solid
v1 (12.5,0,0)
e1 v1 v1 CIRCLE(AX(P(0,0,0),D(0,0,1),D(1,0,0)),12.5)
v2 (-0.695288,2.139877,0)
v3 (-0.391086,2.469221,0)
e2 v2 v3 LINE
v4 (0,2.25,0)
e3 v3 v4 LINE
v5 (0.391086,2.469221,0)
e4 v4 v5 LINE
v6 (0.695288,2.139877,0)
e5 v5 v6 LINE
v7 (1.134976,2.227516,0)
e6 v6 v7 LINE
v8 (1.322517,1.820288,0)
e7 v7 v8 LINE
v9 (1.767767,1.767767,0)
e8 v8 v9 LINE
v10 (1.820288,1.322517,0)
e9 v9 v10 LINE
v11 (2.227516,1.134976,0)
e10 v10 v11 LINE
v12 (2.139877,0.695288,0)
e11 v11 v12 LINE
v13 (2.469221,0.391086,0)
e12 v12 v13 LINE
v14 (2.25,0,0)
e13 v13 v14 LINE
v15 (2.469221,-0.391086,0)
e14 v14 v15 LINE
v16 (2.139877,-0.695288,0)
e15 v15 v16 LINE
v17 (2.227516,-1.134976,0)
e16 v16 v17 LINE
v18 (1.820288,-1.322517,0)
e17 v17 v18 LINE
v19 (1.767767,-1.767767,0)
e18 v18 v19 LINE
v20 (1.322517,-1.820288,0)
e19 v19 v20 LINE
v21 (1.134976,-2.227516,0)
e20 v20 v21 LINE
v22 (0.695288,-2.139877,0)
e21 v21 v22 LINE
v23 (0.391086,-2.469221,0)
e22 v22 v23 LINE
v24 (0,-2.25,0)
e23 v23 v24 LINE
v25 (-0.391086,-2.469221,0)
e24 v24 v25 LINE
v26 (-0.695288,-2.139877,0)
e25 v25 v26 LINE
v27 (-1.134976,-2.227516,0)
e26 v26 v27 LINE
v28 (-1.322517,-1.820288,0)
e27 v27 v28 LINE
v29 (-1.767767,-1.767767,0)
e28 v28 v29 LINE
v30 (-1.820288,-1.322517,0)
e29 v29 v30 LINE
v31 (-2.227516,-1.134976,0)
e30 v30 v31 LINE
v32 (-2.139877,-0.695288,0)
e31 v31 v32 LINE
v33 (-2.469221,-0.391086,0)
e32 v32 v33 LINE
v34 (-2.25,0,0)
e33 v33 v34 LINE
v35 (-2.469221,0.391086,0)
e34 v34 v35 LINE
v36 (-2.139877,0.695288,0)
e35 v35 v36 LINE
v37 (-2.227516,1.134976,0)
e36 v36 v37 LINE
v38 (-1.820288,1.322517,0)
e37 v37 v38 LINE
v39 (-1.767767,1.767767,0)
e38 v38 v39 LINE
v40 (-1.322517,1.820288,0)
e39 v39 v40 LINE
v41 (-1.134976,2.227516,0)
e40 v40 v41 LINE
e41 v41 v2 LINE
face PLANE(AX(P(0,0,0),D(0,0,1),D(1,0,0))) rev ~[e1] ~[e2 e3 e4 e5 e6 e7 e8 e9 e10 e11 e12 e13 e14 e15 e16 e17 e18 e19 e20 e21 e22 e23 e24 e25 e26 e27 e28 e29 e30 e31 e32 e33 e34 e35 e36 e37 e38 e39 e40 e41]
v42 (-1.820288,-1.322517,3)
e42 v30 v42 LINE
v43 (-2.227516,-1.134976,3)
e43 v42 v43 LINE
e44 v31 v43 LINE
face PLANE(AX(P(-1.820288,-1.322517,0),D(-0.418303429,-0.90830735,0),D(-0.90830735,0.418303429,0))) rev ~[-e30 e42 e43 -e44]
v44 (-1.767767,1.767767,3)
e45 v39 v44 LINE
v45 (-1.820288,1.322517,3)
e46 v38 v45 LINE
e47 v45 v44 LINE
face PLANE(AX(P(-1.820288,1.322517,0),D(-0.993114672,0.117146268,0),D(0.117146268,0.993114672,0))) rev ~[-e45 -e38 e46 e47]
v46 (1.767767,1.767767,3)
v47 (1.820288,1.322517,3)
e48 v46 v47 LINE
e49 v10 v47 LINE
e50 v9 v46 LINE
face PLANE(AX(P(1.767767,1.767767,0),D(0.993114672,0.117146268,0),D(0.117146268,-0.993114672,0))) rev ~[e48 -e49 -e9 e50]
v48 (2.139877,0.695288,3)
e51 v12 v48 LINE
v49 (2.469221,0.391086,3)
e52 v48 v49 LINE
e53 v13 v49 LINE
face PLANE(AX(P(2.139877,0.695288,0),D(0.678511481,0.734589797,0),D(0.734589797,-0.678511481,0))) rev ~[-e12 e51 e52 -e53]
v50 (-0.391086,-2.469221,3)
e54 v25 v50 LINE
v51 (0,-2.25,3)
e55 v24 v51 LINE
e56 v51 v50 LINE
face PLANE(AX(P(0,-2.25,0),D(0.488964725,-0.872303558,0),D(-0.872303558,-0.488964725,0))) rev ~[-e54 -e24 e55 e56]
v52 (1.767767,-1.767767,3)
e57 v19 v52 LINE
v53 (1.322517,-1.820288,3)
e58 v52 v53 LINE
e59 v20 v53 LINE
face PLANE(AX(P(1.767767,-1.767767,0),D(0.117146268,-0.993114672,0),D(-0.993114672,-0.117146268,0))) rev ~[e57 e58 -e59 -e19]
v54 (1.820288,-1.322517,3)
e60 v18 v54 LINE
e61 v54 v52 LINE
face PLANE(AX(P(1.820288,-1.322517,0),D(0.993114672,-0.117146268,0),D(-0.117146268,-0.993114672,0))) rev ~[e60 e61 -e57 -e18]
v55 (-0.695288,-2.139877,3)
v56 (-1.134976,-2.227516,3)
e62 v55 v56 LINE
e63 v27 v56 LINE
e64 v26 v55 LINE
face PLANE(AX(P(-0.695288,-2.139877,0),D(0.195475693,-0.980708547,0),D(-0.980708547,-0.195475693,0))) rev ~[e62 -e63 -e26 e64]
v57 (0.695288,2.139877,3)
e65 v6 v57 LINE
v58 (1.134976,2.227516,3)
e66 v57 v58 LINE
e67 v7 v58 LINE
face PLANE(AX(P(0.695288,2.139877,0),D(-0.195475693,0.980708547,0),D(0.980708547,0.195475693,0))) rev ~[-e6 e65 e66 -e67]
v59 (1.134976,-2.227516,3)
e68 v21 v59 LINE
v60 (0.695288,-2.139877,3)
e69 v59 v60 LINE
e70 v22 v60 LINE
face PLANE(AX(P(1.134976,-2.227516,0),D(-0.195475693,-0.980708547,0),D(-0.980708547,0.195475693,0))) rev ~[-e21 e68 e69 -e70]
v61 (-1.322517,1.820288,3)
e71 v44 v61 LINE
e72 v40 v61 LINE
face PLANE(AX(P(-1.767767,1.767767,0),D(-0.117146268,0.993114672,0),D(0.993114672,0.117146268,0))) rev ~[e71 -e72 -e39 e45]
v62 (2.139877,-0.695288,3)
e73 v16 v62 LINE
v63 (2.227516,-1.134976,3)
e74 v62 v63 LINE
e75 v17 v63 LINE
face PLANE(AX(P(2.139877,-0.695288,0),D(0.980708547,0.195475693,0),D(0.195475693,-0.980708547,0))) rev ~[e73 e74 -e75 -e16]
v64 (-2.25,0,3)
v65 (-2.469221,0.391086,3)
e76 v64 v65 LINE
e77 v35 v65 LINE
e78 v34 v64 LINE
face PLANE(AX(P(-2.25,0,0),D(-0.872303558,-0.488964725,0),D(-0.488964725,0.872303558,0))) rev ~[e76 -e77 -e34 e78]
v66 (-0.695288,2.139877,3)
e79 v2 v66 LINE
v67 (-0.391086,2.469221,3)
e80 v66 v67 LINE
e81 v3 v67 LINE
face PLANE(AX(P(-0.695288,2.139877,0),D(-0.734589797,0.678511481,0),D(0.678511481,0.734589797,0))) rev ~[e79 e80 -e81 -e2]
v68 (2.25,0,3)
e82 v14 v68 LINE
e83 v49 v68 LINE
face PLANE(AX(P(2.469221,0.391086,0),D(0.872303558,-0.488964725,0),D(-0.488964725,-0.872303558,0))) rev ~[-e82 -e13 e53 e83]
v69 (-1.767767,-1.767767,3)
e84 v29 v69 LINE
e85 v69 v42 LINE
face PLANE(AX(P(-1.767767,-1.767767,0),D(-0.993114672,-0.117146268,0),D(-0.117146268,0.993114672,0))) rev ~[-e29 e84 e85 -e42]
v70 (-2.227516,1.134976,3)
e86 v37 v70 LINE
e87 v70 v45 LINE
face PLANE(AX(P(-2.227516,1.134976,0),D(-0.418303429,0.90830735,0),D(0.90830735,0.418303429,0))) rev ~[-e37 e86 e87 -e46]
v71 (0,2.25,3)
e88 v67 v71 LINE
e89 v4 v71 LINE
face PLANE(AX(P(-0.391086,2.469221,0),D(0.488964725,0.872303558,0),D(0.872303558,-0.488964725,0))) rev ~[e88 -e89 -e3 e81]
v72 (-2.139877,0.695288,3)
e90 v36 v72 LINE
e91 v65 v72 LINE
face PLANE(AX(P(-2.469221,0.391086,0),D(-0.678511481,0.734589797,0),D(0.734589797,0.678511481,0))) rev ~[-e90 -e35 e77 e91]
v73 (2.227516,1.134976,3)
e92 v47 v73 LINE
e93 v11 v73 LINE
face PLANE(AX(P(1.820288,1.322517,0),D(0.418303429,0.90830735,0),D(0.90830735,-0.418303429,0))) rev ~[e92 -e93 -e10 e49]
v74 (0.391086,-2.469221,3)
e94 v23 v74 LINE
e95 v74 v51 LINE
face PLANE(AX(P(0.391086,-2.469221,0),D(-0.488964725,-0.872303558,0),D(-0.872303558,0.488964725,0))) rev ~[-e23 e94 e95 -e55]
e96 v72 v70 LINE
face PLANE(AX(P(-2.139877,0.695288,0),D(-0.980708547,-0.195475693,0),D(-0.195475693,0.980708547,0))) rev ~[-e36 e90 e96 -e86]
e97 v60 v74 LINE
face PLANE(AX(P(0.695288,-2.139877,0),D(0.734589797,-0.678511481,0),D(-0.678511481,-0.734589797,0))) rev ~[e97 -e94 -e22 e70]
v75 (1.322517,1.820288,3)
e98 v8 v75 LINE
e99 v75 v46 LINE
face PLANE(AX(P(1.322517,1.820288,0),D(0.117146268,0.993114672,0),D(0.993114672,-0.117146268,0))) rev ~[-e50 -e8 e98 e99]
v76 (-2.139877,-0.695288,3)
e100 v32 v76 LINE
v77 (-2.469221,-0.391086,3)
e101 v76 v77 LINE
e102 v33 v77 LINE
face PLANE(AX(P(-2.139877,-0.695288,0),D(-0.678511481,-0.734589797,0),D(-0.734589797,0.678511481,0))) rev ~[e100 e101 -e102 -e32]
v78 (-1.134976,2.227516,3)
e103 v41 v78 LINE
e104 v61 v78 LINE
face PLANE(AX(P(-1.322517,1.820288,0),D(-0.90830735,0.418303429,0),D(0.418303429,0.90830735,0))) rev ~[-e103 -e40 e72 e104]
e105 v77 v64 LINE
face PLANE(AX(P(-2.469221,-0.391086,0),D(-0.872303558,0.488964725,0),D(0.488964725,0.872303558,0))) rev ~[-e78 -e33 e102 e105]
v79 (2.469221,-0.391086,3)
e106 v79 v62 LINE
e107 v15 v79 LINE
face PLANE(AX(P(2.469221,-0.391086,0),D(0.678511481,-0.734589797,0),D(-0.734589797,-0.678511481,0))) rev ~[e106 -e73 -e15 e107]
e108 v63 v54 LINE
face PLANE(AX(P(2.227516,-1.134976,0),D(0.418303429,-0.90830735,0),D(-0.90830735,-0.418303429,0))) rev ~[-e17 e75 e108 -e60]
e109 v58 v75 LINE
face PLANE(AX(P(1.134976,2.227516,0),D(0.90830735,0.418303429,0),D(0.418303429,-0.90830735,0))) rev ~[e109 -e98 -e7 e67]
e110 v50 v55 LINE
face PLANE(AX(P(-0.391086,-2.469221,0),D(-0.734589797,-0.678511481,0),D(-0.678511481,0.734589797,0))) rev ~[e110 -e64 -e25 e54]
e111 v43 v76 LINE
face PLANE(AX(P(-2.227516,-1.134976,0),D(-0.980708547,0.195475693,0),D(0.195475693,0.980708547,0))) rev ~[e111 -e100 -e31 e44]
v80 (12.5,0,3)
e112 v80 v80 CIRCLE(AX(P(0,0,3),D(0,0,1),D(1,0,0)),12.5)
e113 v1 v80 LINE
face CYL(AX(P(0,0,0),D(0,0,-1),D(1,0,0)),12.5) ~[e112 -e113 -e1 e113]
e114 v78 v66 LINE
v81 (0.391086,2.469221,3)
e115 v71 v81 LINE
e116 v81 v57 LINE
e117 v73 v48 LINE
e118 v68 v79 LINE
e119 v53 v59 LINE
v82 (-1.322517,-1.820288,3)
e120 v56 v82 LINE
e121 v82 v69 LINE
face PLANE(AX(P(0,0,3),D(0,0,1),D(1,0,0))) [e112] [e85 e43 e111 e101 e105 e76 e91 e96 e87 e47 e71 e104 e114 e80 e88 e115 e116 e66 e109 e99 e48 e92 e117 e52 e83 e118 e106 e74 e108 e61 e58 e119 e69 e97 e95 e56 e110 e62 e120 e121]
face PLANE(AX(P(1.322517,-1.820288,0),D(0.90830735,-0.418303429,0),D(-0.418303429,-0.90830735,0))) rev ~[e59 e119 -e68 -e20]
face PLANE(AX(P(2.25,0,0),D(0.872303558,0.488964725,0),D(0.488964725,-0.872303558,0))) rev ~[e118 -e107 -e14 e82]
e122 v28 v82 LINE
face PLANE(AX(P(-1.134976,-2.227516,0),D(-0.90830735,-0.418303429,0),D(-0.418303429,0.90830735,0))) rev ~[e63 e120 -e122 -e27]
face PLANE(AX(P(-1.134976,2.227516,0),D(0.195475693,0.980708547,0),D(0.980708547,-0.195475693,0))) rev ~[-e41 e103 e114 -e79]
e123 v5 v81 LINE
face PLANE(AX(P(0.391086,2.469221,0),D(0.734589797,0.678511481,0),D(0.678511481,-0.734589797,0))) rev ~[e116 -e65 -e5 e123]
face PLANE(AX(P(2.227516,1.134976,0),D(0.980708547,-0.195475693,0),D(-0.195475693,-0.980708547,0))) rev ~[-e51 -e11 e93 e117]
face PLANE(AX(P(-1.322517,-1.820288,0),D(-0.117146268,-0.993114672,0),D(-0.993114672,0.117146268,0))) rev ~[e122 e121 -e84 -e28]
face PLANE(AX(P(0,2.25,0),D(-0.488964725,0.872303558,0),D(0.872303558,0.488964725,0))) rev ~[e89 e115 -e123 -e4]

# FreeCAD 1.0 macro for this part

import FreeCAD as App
import Part
import Sketcher
Q = App.Units.Quantity

doc = App.newDocument("Part")
params = doc.addObject("Spreadsheet::Sheet", "Params")
for row, (alias, value) in enumerate([
    ("sketch1_diameter", "25 mm"),
    ("pad1_length", "3 mm"),
], start=1):
    params.set(f"A{row}", alias)
    params.set(f"B{row}", "=" + value)
    params.setAlias(f"B{row}", alias)

body = doc.addObject("PartDesign::Body", "Body")

# Sketch on XY plane
sketch1 = body.newObject("Sketcher::SketchObject", "Sketch")
sketch1.AttachmentSupport = (doc.getObject("XY_Plane"), [""])
sketch1.MapMode = "FlatFace"
sketch1.addGeometry(Part.Circle(App.Vector(0, 0, 0), App.Vector(0, 0, 1), 12.5), False)
sketch1.addGeometry(Part.LineSegment(App.Vector(2.14, 0.7, 0), App.Vector(2.47, 0.39, 0)), False)
sketch1.addGeometry(Part.LineSegment(App.Vector(2.47, 0.39, 0), App.Vector(2.25, 0, 0)), False)
sketch1.addGeometry(Part.LineSegment(App.Vector(2.25, 0, 0), App.Vector(2.47, -0.39, 0)), False)
sketch1.addGeometry(Part.LineSegment(App.Vector(2.47, -0.39, 0), App.Vector(2.14, -0.7, 0)), False)
sketch1.addGeometry(Part.LineSegment(App.Vector(2.14, -0.7, 0), App.Vector(2.23, -1.13, 0)), False)
sketch1.addGeometry(Part.LineSegment(App.Vector(2.23, -1.13, 0), App.Vector(1.82, -1.32, 0)), False)
sketch1.addGeometry(Part.LineSegment(App.Vector(1.82, -1.32, 0), App.Vector(1.77, -1.77, 0)), False)
sketch1.addGeometry(Part.LineSegment(App.Vector(1.77, -1.77, 0), App.Vector(1.32, -1.82, 0)), False)
sketch1.addGeometry(Part.LineSegment(App.Vector(1.32, -1.82, 0), App.Vector(1.13, -2.23, 0)), False)
sketch1.addGeometry(Part.LineSegment(App.Vector(1.13, -2.23, 0), App.Vector(0.7, -2.14, 0)), False)
sketch1.addGeometry(Part.LineSegment(App.Vector(0.7, -2.14, 0), App.Vector(0.39, -2.47, 0)), False)
sketch1.addGeometry(Part.LineSegment(App.Vector(0.39, -2.47, 0), App.Vector(0, -2.25, 0)), False)
sketch1.addGeometry(Part.LineSegment(App.Vector(0, -2.25, 0), App.Vector(-0.39, -2.47, 0)), False)
sketch1.addGeometry(Part.LineSegment(App.Vector(-0.39, -2.47, 0), App.Vector(-0.7, -2.14, 0)), False)
sketch1.addGeometry(Part.LineSegment(App.Vector(-0.7, -2.14, 0), App.Vector(-1.13, -2.23, 0)), False)
sketch1.addGeometry(Part.LineSegment(App.Vector(-1.13, -2.23, 0), App.Vector(-1.32, -1.82, 0)), False)
sketch1.addGeometry(Part.LineSegment(App.Vector(-1.32, -1.82, 0), App.Vector(-1.77, -1.77, 0)), False)
sketch1.addGeometry(Part.LineSegment(App.Vector(-1.77, -1.77, 0), App.Vector(-1.82, -1.32, 0)), False)
sketch1.addGeometry(Part.LineSegment(App.Vector(-1.82, -1.32, 0), App.Vector(-2.23, -1.13, 0)), False)
sketch1.addGeometry(Part.LineSegment(App.Vector(-2.23, -1.13, 0), App.Vector(-2.14, -0.7, 0)), False)
sketch1.addGeometry(Part.LineSegment(App.Vector(-2.14, -0.7, 0), App.Vector(-2.47, -0.39, 0)), False)
sketch1.addGeometry(Part.LineSegment(App.Vector(-2.47, -0.39, 0), App.Vector(-2.25, 0, 0)), False)
sketch1.addGeometry(Part.LineSegment(App.Vector(-2.25, 0, 0), App.Vector(-2.47, 0.39, 0)), False)
sketch1.addGeometry(Part.LineSegment(App.Vector(-2.47, 0.39, 0), App.Vector(-2.14, 0.7, 0)), False)
sketch1.addGeometry(Part.LineSegment(App.Vector(-2.14, 0.7, 0), App.Vector(-2.23, 1.13, 0)), False)
sketch1.addGeometry(Part.LineSegment(App.Vector(-2.23, 1.13, 0), App.Vector(-1.82, 1.32, 0)), False)
sketch1.addGeometry(Part.LineSegment(App.Vector(-1.82, 1.32, 0), App.Vector(-1.77, 1.77, 0)), False)
sketch1.addGeometry(Part.LineSegment(App.Vector(-1.77, 1.77, 0), App.Vector(-1.32, 1.82, 0)), False)
sketch1.addGeometry(Part.LineSegment(App.Vector(-1.32, 1.82, 0), App.Vector(-1.13, 2.23, 0)), False)
sketch1.addGeometry(Part.LineSegment(App.Vector(-1.13, 2.23, 0), App.Vector(-0.7, 2.14, 0)), False)
sketch1.addGeometry(Part.LineSegment(App.Vector(-0.7, 2.14, 0), App.Vector(-0.39, 2.47, 0)), False)
sketch1.addGeometry(Part.LineSegment(App.Vector(-0.39, 2.47, 0), App.Vector(0, 2.25, 0)), False)
sketch1.addGeometry(Part.LineSegment(App.Vector(0, 2.25, 0), App.Vector(0.39, 2.47, 0)), False)
sketch1.addGeometry(Part.LineSegment(App.Vector(0.39, 2.47, 0), App.Vector(0.7, 2.14, 0)), False)
sketch1.addGeometry(Part.LineSegment(App.Vector(0.7, 2.14, 0), App.Vector(1.13, 2.23, 0)), False)
sketch1.addGeometry(Part.LineSegment(App.Vector(1.13, 2.23, 0), App.Vector(1.32, 1.82, 0)), False)
sketch1.addGeometry(Part.LineSegment(App.Vector(1.32, 1.82, 0), App.Vector(1.77, 1.77, 0)), False)
sketch1.addGeometry(Part.LineSegment(App.Vector(1.77, 1.77, 0), App.Vector(1.82, 1.32, 0)), False)
sketch1.addGeometry(Part.LineSegment(App.Vector(1.82, 1.32, 0), App.Vector(2.23, 1.13, 0)), False)
sketch1.addGeometry(Part.LineSegment(App.Vector(2.23, 1.13, 0), App.Vector(2.14, 0.7, 0)), False)
sketch1.addConstraint(Sketcher.Constraint("Coincident", 1, 2, 2, 1))
sketch1.addConstraint(Sketcher.Constraint("Coincident", 2, 2, 3, 1))
sketch1.addConstraint(Sketcher.Constraint("Coincident", 3, 2, 4, 1))
sketch1.addConstraint(Sketcher.Constraint("Coincident", 4, 2, 5, 1))
sketch1.addConstraint(Sketcher.Constraint("Coincident", 5, 2, 6, 1))
sketch1.addConstraint(Sketcher.Constraint("Coincident", 6, 2, 7, 1))
sketch1.addConstraint(Sketcher.Constraint("Coincident", 7, 2, 8, 1))
sketch1.addConstraint(Sketcher.Constraint("Coincident", 8, 2, 9, 1))
sketch1.addConstraint(Sketcher.Constraint("Coincident", 9, 2, 10, 1))
sketch1.addConstraint(Sketcher.Constraint("Coincident", 10, 2, 11, 1))
sketch1.addConstraint(Sketcher.Constraint("Coincident", 11, 2, 12, 1))
sketch1.addConstraint(Sketcher.Constraint("Coincident", 12, 2, 13, 1))
sketch1.addConstraint(Sketcher.Constraint("Coincident", 13, 2, 14, 1))
sketch1.addConstraint(Sketcher.Constraint("Coincident", 14, 2, 15, 1))
sketch1.addConstraint(Sketcher.Constraint("Coincident", 15, 2, 16, 1))
sketch1.addConstraint(Sketcher.Constraint("Coincident", 16, 2, 17, 1))
sketch1.addConstraint(Sketcher.Constraint("Coincident", 17, 2, 18, 1))
sketch1.addConstraint(Sketcher.Constraint("Coincident", 18, 2, 19, 1))
sketch1.addConstraint(Sketcher.Constraint("Coincident", 19, 2, 20, 1))
sketch1.addConstraint(Sketcher.Constraint("Coincident", 20, 2, 21, 1))
sketch1.addConstraint(Sketcher.Constraint("Coincident", 21, 2, 22, 1))
sketch1.addConstraint(Sketcher.Constraint("Coincident", 22, 2, 23, 1))
sketch1.addConstraint(Sketcher.Constraint("Coincident", 23, 2, 24, 1))
sketch1.addConstraint(Sketcher.Constraint("Coincident", 24, 2, 25, 1))
sketch1.addConstraint(Sketcher.Constraint("Coincident", 25, 2, 26, 1))
sketch1.addConstraint(Sketcher.Constraint("Coincident", 26, 2, 27, 1))
sketch1.addConstraint(Sketcher.Constraint("Coincident", 27, 2, 28, 1))
sketch1.addConstraint(Sketcher.Constraint("Coincident", 28, 2, 29, 1))
sketch1.addConstraint(Sketcher.Constraint("Coincident", 29, 2, 30, 1))
sketch1.addConstraint(Sketcher.Constraint("Coincident", 30, 2, 31, 1))
sketch1.addConstraint(Sketcher.Constraint("Coincident", 31, 2, 32, 1))
sketch1.addConstraint(Sketcher.Constraint("Coincident", 32, 2, 33, 1))
sketch1.addConstraint(Sketcher.Constraint("Coincident", 33, 2, 34, 1))
sketch1.addConstraint(Sketcher.Constraint("Coincident", 34, 2, 35, 1))
sketch1.addConstraint(Sketcher.Constraint("Coincident", 35, 2, 36, 1))
sketch1.addConstraint(Sketcher.Constraint("Coincident", 36, 2, 37, 1))
sketch1.addConstraint(Sketcher.Constraint("Coincident", 37, 2, 38, 1))
sketch1.addConstraint(Sketcher.Constraint("Coincident", 38, 2, 39, 1))
sketch1.addConstraint(Sketcher.Constraint("Coincident", 39, 2, 40, 1))
sketch1.addConstraint(Sketcher.Constraint("Coincident", 40, 2, 1, 1))
sketch1.addConstraint(Sketcher.Constraint("Coincident", 0, 3, -1, 1))
sketch1.addConstraint(Sketcher.Constraint("Symmetric", 1, 2, 21, 2, -1, 1))
sketch1.addConstraint(Sketcher.Constraint("Symmetric", 2, 2, 22, 2, -1, 1))
sketch1.addConstraint(Sketcher.Constraint("Symmetric", 3, 2, 23, 2, -1, 1))
sketch1.addConstraint(Sketcher.Constraint("Symmetric", 4, 2, 24, 2, -1, 1))
sketch1.addConstraint(Sketcher.Constraint("Symmetric", 5, 2, 25, 2, -1, 1))
sketch1.addConstraint(Sketcher.Constraint("Symmetric", 6, 2, 26, 2, -1, 1))
sketch1.addConstraint(Sketcher.Constraint("Symmetric", 7, 2, 27, 2, -1, 1))
sketch1.addConstraint(Sketcher.Constraint("Symmetric", 8, 2, 28, 2, -1, 1))
sketch1.addConstraint(Sketcher.Constraint("Symmetric", 9, 2, 29, 2, -1, 1))
sketch1.addConstraint(Sketcher.Constraint("Symmetric", 10, 2, 30, 2, -1, 1))
sketch1.addConstraint(Sketcher.Constraint("Symmetric", 11, 2, 31, 2, -1, 1))
sketch1.addConstraint(Sketcher.Constraint("Symmetric", 12, 2, 32, 2, -1, 1))
sketch1.addConstraint(Sketcher.Constraint("Symmetric", 13, 2, 33, 2, -1, 1))
sketch1.addConstraint(Sketcher.Constraint("Symmetric", 14, 2, 34, 2, -1, 1))
sketch1.addConstraint(Sketcher.Constraint("Symmetric", 15, 2, 35, 2, -1, 1))
sketch1.addConstraint(Sketcher.Constraint("Symmetric", 16, 2, 36, 2, -1, 1))
sketch1.addConstraint(Sketcher.Constraint("Symmetric", 17, 2, 37, 2, -1, 1))
sketch1.addConstraint(Sketcher.Constraint("Symmetric", 18, 2, 38, 2, -1, 1))
sketch1.addConstraint(Sketcher.Constraint("Symmetric", 19, 2, 39, 2, -1, 1))
sketch1.addConstraint(Sketcher.Constraint("Symmetric", 20, 2, 40, 2, -1, 1))
sketch1.addConstraint(Sketcher.Constraint("Symmetric", 11, 2, 13, 2, -2))
sketch1.addConstraint(Sketcher.Constraint("Symmetric", 10, 2, 14, 2, -2))
sketch1.addConstraint(Sketcher.Constraint("Symmetric", 9, 2, 15, 2, -2))
sketch1.addConstraint(Sketcher.Constraint("Symmetric", 8, 2, 16, 2, -2))
sketch1.addConstraint(Sketcher.Constraint("Symmetric", 7, 2, 17, 2, -2))
sketch1.addConstraint(Sketcher.Constraint("Symmetric", 6, 2, 18, 2, -2))
sketch1.addConstraint(Sketcher.Constraint("Symmetric", 5, 2, 19, 2, -2))
sketch1.addConstraint(Sketcher.Constraint("Symmetric", 4, 2, 20, 2, -2))
sketch1.addConstraint(Sketcher.Constraint("Symmetric", 3, 2, 21, 2, -2))
sketch1.addConstraint(Sketcher.Constraint("PointOnObject", 2, 2, -1))
sketch1.addConstraint(Sketcher.Constraint("PointOnObject", 12, 2, -2))
sketch1.addConstraint(Sketcher.Constraint("Perpendicular", 1, 11))
sketch1.addConstraint(Sketcher.Constraint("Perpendicular", 2, 12))
sketch1.addConstraint(Sketcher.Constraint("Perpendicular", 5, 15))
sketch1.addConstraint(Sketcher.Constraint("Perpendicular", 6, 16))
sketch1.addConstraint(Sketcher.Constraint("Perpendicular", 7, 17))
sketch1.addConstraint(Sketcher.Constraint("Equal", 1, 2))
sketch1.addConstraint(Sketcher.Constraint("Equal", 4, 5))
sketch1.addConstraint(Sketcher.Constraint("Equal", 5, 6))
sketch1.addConstraint(Sketcher.Constraint("Equal", 6, 7))
sketch1.addConstraint(Sketcher.Constraint("Equal", 7, 8))
sketch1.addConstraint(Sketcher.Constraint("Equal", 8, 9))
sketch1.addConstraint(Sketcher.Constraint("Equal", 9, 10))
sketch1.addConstraint(Sketcher.Constraint("Equal", 10, 11))
sketch1.addConstraint(Sketcher.Constraint("Equal", 11, 12))
sketch1.addConstraint(Sketcher.Constraint("Diameter", 0, Q("25 mm")))
sketch1.addConstraint(Sketcher.Constraint("DistanceX", -1, 1, 2, 2, Q("2.25 mm")))
sketch1.addConstraint(Sketcher.Constraint("DistanceX", 8, 2, 5, 2, Q("0.904999 mm")))
sketch1.addConstraint(Sketcher.Constraint("DistanceY", 8, 2, 4, 2, Q("1.125 mm")))
sketch1.addConstraint(Sketcher.Constraint("DistanceY", 8, 2, 3, 2, Q("1.429202 mm")))
sketch1.addConstraint(Sketcher.Constraint("DistanceX", 9, 2, 4, 2, Q("1.004901 mm")))
sketch1.addConstraint(Sketcher.Constraint("DistanceX", -1, 1, 1, 2, Q("2.469221 mm")))
sketch1.setExpression("Constraints[86]", "Params.sketch1_diameter")
pad1 = body.newObject("PartDesign::Pad", "Pad")
pad1.Profile = sketch1
pad1.setExpression("Length", "Params.pad1_length")

doc.recompute()
